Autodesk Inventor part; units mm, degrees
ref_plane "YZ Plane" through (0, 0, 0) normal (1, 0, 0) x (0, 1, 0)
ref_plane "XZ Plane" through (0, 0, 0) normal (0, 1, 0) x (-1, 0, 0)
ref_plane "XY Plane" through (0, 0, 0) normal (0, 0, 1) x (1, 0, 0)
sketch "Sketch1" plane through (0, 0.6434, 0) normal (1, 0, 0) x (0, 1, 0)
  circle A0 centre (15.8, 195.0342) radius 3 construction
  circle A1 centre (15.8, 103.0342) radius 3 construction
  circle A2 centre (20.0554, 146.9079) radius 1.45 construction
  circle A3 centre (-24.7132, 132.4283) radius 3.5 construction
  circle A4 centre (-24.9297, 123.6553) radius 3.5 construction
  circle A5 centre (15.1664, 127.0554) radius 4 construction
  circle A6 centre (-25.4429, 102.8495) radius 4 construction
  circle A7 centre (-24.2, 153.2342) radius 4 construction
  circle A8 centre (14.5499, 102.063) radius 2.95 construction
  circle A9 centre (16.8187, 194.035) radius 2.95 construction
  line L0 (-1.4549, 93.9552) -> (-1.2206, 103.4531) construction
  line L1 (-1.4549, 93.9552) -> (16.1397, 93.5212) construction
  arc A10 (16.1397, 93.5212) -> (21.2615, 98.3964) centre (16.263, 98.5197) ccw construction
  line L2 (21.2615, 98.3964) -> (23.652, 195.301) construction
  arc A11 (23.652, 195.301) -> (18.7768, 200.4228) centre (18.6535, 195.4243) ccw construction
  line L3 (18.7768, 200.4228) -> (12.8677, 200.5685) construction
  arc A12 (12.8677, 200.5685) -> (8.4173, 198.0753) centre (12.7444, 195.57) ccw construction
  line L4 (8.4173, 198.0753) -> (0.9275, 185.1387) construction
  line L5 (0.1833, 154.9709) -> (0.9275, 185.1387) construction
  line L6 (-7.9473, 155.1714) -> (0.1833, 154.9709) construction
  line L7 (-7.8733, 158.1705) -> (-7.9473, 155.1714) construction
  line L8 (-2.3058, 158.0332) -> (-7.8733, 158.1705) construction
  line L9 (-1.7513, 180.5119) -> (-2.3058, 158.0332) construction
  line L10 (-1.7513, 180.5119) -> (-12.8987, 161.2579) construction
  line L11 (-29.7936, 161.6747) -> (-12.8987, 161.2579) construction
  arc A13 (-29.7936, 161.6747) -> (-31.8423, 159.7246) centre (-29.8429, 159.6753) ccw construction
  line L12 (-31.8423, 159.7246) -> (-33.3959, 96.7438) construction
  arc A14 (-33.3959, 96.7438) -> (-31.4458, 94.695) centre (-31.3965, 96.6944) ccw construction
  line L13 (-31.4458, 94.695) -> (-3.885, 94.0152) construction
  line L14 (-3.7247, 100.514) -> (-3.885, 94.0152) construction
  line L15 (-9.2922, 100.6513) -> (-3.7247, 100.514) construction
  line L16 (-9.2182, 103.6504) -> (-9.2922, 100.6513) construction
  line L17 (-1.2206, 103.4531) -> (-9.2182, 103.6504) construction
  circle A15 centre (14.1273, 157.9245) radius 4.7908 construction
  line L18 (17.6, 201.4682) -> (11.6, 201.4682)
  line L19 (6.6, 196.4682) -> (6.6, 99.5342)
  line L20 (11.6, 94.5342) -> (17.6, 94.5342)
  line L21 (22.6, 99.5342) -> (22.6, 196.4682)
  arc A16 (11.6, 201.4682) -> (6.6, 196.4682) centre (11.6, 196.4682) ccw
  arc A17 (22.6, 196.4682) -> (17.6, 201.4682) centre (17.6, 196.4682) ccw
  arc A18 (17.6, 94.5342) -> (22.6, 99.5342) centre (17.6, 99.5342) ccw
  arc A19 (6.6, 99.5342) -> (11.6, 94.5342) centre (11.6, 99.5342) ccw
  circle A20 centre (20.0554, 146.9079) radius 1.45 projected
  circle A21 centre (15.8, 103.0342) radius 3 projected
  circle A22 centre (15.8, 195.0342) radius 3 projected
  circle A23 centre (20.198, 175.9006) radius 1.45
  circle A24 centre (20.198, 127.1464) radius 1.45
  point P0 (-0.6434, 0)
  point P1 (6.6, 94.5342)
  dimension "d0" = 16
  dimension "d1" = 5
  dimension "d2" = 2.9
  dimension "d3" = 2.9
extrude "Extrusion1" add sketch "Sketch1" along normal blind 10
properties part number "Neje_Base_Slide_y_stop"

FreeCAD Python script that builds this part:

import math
import FreeCAD as App
import Part
import Sketcher
Q = App.Units.Quantity

doc = App.newDocument("Part")
params = doc.addObject("Spreadsheet::Sheet", "Params")
for row, (alias, value) in enumerate([
    ("sketch1_radius", "5 mm"),
    ("sketch1_diameter", "2.9 mm"),
    ("sketch1_diameter2", "6 mm"),
    ("sketch1_width", "6 mm"),
    ("pad1_length", "10 mm"),
], start=1):
    params.set(f"A{row}", alias)
    params.set(f"B{row}", "=" + value)
    params.setAlias(f"B{row}", alias)

body = doc.addObject("PartDesign::Body", "Body")

# Sketch on YZ plane
sketch1 = body.newObject("Sketcher::SketchObject", "Sketch")
sketch1.AttachmentSupport = (doc.getObject("YZ_Plane"), [""])
sketch1.MapMode = "FlatFace"
sketch1.addGeometry(Part.ArcOfCircle(Part.Circle(App.Vector(18.2, 196.5, 0), App.Vector(0, 0, 1), 5), math.radians(0), math.radians(90)), False)
sketch1.addGeometry(Part.LineSegment(App.Vector(18.2, 201.5, 0), App.Vector(12.2, 201.5, 0)), False)
sketch1.addGeometry(Part.ArcOfCircle(Part.Circle(App.Vector(12.2, 196.5, 0), App.Vector(0, 0, 1), 5), math.radians(90), math.radians(180)), False)
sketch1.addGeometry(Part.LineSegment(App.Vector(7.2, 196.5, 0), App.Vector(7.2, 99.5, 0)), False)
sketch1.addGeometry(Part.ArcOfCircle(Part.Circle(App.Vector(12.2, 99.5, 0), App.Vector(0, 0, 1), 5), math.radians(180), math.radians(270)), False)
sketch1.addGeometry(Part.LineSegment(App.Vector(12.2, 94.5, 0), App.Vector(18.2, 94.5, 0)), False)
sketch1.addGeometry(Part.ArcOfCircle(Part.Circle(App.Vector(18.2, 99.5, 0), App.Vector(0, 0, 1), 5), math.radians(-90), math.radians(0)), False)
sketch1.addGeometry(Part.LineSegment(App.Vector(23.2, 99.5, 0), App.Vector(23.2, 196.5, 0)), False)
sketch1.addGeometry(Part.Circle(App.Vector(16.4, 103, 0), App.Vector(0, 0, 1), 3), False)
sketch1.addGeometry(Part.Circle(App.Vector(20.8, 127.1, 0), App.Vector(0, 0, 1), 1.4), False)
sketch1.addGeometry(Part.Circle(App.Vector(20.7, 146.9, 0), App.Vector(0, 0, 1), 1.4), False)
sketch1.addGeometry(Part.Circle(App.Vector(16.4, 195, 0), App.Vector(0, 0, 1), 3), False)
sketch1.addGeometry(Part.Circle(App.Vector(20.8, 175.9, 0), App.Vector(0, 0, 1), 1.4), False)
sketch1.addConstraint(Sketcher.Constraint("Tangent", 0, 2, 1, 1))
sketch1.addConstraint(Sketcher.Constraint("Tangent", 1, 2, 2, 1))
sketch1.addConstraint(Sketcher.Constraint("Tangent", 2, 2, 3, 1))
sketch1.addConstraint(Sketcher.Constraint("Tangent", 3, 2, 4, 1))
sketch1.addConstraint(Sketcher.Constraint("Tangent", 4, 2, 5, 1))
sketch1.addConstraint(Sketcher.Constraint("Tangent", 5, 2, 6, 1))
sketch1.addConstraint(Sketcher.Constraint("Tangent", 6, 2, 7, 1))
sketch1.addConstraint(Sketcher.Constraint("Tangent", 7, 2, 0, 1))
sketch1.addConstraint(Sketcher.Constraint("Horizontal", 1))
sketch1.addConstraint(Sketcher.Constraint("Vertical", 3))
sketch1.addConstraint(Sketcher.Constraint("Horizontal", 5))
sketch1.addConstraint(Sketcher.Constraint("Vertical", 7))
sketch1.addConstraint(Sketcher.Constraint("Equal", 0, 2))
sketch1.addConstraint(Sketcher.Constraint("Equal", 2, 4))
sketch1.addConstraint(Sketcher.Constraint("Equal", 4, 6))
sketch1.addConstraint(Sketcher.Constraint("Equal", 9, 10))
sketch1.addConstraint(Sketcher.Constraint("Equal", 8, 11))
sketch1.addConstraint(Sketcher.Constraint("Equal", 10, 12))
sketch1.addConstraint(Sketcher.Constraint("Vertical", 8, 3, 11, 3))
sketch1.addConstraint(Sketcher.Constraint("Vertical", 9, 3, 12, 3))
sketch1.addConstraint(Sketcher.Constraint("Radius", 0, Q("5 mm")))
sketch1.addConstraint(Sketcher.Constraint("Diameter", 9, Q("2.9 mm")))
sketch1.addConstraint(Sketcher.Constraint("Diameter", 8, Q("6 mm")))
sketch1.addConstraint(Sketcher.Constraint("DistanceX", 1, 2, 1, 1, Q("6 mm")))
sketch1.addConstraint(Sketcher.Constraint("DistanceY", 8, 3, 11, 3, Q("92 mm")))
sketch1.addConstraint(Sketcher.Constraint("DistanceX", 8, 3, 6, 3, Q("1.8 mm")))
sketch1.addConstraint(Sketcher.Constraint("DistanceY", 6, 3, 8, 3, Q("3.5 mm")))
sketch1.addConstraint(Sketcher.Constraint("DistanceY", 3, 2, 3, 1, Q("96.934 mm")))
sketch1.addConstraint(Sketcher.Constraint("DistanceY", -1, 1, 10, 3, Q("146.908 mm")))
sketch1.addConstraint(Sketcher.Constraint("DistanceX", 8, 3, 9, 3, Q("4.398 mm")))
sketch1.addConstraint(Sketcher.Constraint("DistanceX", -1, 1, 0, 3, Q("18.2434 mm")))
sketch1.addConstraint(Sketcher.Constraint("DistanceY", -1, 1, 0, 3, Q("196.4682 mm")))
sketch1.addConstraint(Sketcher.Constraint("DistanceY", -1, 1, 9, 3, Q("127.1464 mm")))
sketch1.addConstraint(Sketcher.Constraint("DistanceX", -1, 1, 10, 3, Q("20.6988 mm")))
sketch1.addConstraint(Sketcher.Constraint("DistanceY", -1, 1, 12, 3, Q("175.9006 mm")))
sketch1.setExpression("Constraints[20]", "Params.sketch1_radius")
sketch1.setExpression("Constraints[21]", "Params.sketch1_diameter")
sketch1.setExpression("Constraints[22]", "Params.sketch1_diameter2")
sketch1.setExpression("Constraints[23]", "Params.sketch1_width")
pad1 = body.newObject("PartDesign::Pad", "Pad")
pad1.Profile = sketch1
pad1.setExpression("Length", "Params.pad1_length")

doc.recompute()
